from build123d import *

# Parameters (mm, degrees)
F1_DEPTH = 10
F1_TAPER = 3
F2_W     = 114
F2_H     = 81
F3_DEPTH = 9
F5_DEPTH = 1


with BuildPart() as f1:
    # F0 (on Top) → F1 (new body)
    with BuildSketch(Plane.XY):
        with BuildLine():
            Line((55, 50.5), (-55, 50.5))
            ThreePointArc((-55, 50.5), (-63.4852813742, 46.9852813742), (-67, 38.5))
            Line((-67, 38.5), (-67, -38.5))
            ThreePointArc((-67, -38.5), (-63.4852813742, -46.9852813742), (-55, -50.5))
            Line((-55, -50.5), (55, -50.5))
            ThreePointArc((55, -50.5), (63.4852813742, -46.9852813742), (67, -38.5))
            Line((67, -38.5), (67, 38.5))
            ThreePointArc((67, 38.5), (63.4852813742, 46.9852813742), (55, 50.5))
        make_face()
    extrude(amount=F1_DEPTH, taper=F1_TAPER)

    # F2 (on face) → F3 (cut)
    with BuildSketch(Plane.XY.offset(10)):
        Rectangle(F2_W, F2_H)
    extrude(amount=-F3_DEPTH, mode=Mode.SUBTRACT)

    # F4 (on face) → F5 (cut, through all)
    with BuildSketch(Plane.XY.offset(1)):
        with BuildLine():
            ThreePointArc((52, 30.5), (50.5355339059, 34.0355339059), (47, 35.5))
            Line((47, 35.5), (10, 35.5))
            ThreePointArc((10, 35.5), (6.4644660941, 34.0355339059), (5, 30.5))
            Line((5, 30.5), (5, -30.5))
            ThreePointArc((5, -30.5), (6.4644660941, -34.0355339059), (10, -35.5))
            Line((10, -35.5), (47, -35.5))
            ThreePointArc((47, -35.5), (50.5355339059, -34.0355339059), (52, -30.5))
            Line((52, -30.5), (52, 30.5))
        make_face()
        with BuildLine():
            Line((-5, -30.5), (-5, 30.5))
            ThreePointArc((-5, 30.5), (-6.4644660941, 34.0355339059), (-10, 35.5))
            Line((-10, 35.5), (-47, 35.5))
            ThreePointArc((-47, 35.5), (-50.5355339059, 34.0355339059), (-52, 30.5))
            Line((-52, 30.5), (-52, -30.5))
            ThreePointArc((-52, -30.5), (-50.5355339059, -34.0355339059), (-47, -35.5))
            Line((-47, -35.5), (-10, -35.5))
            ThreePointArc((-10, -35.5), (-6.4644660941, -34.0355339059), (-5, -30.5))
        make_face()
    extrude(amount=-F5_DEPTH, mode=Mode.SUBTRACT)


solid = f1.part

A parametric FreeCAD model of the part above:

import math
import FreeCAD as App
import Part
import Sketcher
from FreeCAD import Vector
Q = App.Units.Quantity


def add_polygon(sketch, points):
    """Adds a closed chain of lines whose ends are joined by coincident constraints."""
    first, n = sketch.GeometryCount, len(points)
    for a, b in zip(points, points[1:] + points[:1]):
        sketch.addGeometry(Part.LineSegment(App.Vector(*a, 0), App.Vector(*b, 0)), False)
    for i in range(n):
        sketch.addConstraint(Sketcher.Constraint("Coincident", first + i, 2, first + (i + 1) % n, 1))

doc = App.newDocument("Part")
body = doc.addObject("PartDesign::Body", "Body")

# Sketch on XY plane
sketch1 = body.newObject("Sketcher::SketchObject", "Sketch")
sketch1.AttachmentSupport = (doc.getObject("XY_Plane"), [""])
sketch1.MapMode = "FlatFace"
sketch1.addGeometry(Part.LineSegment(Vector(55, 50, 0), Vector(-55, 50, 0)), False)
sketch1.addGeometry(Part.ArcOfCircle(Part.Circle(Vector(-55, 38, 0), Vector(0, 0, 1), 12), math.radians(90), math.radians(180)), False)
sketch1.addGeometry(Part.LineSegment(Vector(-67, 38, 0), Vector(-67, -38, 0)), False)
sketch1.addGeometry(Part.ArcOfCircle(Part.Circle(Vector(-55, -38, 0), Vector(0, 0, 1), 12), math.radians(180), math.radians(270)), False)
sketch1.addGeometry(Part.LineSegment(Vector(-55, -50, 0), Vector(55, -50, 0)), False)
sketch1.addGeometry(Part.ArcOfCircle(Part.Circle(Vector(55, -38, 0), Vector(0, 0, 1), 12), math.radians(-90), math.radians(0)), False)
sketch1.addGeometry(Part.LineSegment(Vector(67, -38, 0), Vector(67, 38, 0)), False)
sketch1.addGeometry(Part.ArcOfCircle(Part.Circle(Vector(55, 38, 0), Vector(0, 0, 1), 12), math.radians(0), math.radians(90)), False)
sketch1.addConstraint(Sketcher.Constraint("Tangent", 0, 2, 1, 1))
sketch1.addConstraint(Sketcher.Constraint("Tangent", 1, 2, 2, 1))
sketch1.addConstraint(Sketcher.Constraint("Tangent", 2, 2, 3, 1))
sketch1.addConstraint(Sketcher.Constraint("Tangent", 3, 2, 4, 1))
sketch1.addConstraint(Sketcher.Constraint("Tangent", 4, 2, 5, 1))
sketch1.addConstraint(Sketcher.Constraint("Tangent", 5, 2, 6, 1))
sketch1.addConstraint(Sketcher.Constraint("Tangent", 6, 2, 7, 1))
sketch1.addConstraint(Sketcher.Constraint("Tangent", 7, 2, 0, 1))
sketch1.addConstraint(Sketcher.Constraint("Horizontal", 0))
sketch1.addConstraint(Sketcher.Constraint("Vertical", 2))
sketch1.addConstraint(Sketcher.Constraint("Horizontal", 4))
sketch1.addConstraint(Sketcher.Constraint("Vertical", 6))
sketch1.addConstraint(Sketcher.Constraint("Equal", 1, 3))
sketch1.addConstraint(Sketcher.Constraint("Equal", 3, 5))
sketch1.addConstraint(Sketcher.Constraint("Equal", 5, 7))
sketch1.addConstraint(Sketcher.Constraint("Symmetric", 1, 3, 5, 3, -1, 1))
sketch1.addConstraint(Sketcher.Constraint("Radius", 1, Q("12 mm")))
sketch1.addConstraint(Sketcher.Constraint("DistanceX", 0, 2, 0, 1, Q("110 mm")))
sketch1.addConstraint(Sketcher.Constraint("DistanceY", 2, 2, 2, 1, Q("77 mm")))
pad1 = body.newObject("PartDesign::Pad", "Pad")
pad1.Profile = sketch1
pad1.Length = 10
pad1.TaperAngle = -3

# Sketch on XY plane
sketch2 = body.newObject("Sketcher::SketchObject", "Sketch001")
sketch2.AttachmentSupport = (doc.getObject("XY_Plane"), [""])
sketch2.MapMode = "FlatFace"
sketch2.AttachmentOffset = App.Placement(Vector(0, 0, 10), App.Rotation())
add_polygon(sketch2, [(-57, 40), (-57, -40), (57, -40), (57, 40)])  # lines 0-3
sketch2.addConstraint(Sketcher.Constraint("Vertical", 0))
sketch2.addConstraint(Sketcher.Constraint("Horizontal", 1))
sketch2.addConstraint(Sketcher.Constraint("Vertical", 2))
sketch2.addConstraint(Sketcher.Constraint("Horizontal", 3))
sketch2.addConstraint(Sketcher.Constraint("Symmetric", 0, 2, 2, 2, -1, 1))
sketch2.addConstraint(Sketcher.Constraint("DistanceX", 1, 1, 1, 2, Q("114 mm")))
sketch2.addConstraint(Sketcher.Constraint("DistanceY", 0, 2, 0, 1, Q("81 mm")))
pocket1 = body.newObject("PartDesign::Pocket", "Pocket")
pocket1.Profile = sketch2
pocket1.Length = 9

# Sketch on XY plane
sketch3 = body.newObject("Sketcher::SketchObject", "Sketch002")
sketch3.AttachmentSupport = (doc.getObject("XY_Plane"), [""])
sketch3.MapMode = "FlatFace"
sketch3.AttachmentOffset = App.Placement(Vector(0, 0, 1), App.Rotation())
sketch3.addGeometry(Part.ArcOfCircle(Part.Circle(Vector(47, 30, 0), Vector(0, 0, 1), 5), math.radians(0), math.radians(90)), False)
sketch3.addGeometry(Part.LineSegment(Vector(47, 36, 0), Vector(10, 36, 0)), False)
sketch3.addGeometry(Part.ArcOfCircle(Part.Circle(Vector(10, 30, 0), Vector(0, 0, 1), 5), math.radians(90), math.radians(180)), False)
sketch3.addGeometry(Part.LineSegment(Vector(5, 30, 0), Vector(5, -30, 0)), False)
sketch3.addGeometry(Part.ArcOfCircle(Part.Circle(Vector(10, -30, 0), Vector(0, 0, 1), 5), math.radians(180), math.radians(270)), False)
sketch3.addGeometry(Part.LineSegment(Vector(10, -36, 0), Vector(47, -36, 0)), False)
sketch3.addGeometry(Part.ArcOfCircle(Part.Circle(Vector(47, -30, 0), Vector(0, 0, 1), 5), math.radians(-90), math.radians(0)), False)
sketch3.addGeometry(Part.LineSegment(Vector(52, -30, 0), Vector(52, 30, 0)), False)
sketch3.addGeometry(Part.LineSegment(Vector(-5, -30, 0), Vector(-5, 30, 0)), False)
sketch3.addGeometry(Part.ArcOfCircle(Part.Circle(Vector(-10, 30, 0), Vector(0, 0, 1), 5), math.radians(0), math.radians(90)), False)
sketch3.addGeometry(Part.LineSegment(Vector(-10, 36, 0), Vector(-47, 36, 0)), False)
sketch3.addGeometry(Part.ArcOfCircle(Part.Circle(Vector(-47, 30, 0), Vector(0, 0, 1), 5), math.radians(90), math.radians(180)), False)
sketch3.addGeometry(Part.LineSegment(Vector(-52, 30, 0), Vector(-52, -30, 0)), False)
sketch3.addGeometry(Part.ArcOfCircle(Part.Circle(Vector(-47, -30, 0), Vector(0, 0, 1), 5), math.radians(180), math.radians(270)), False)
sketch3.addGeometry(Part.LineSegment(Vector(-47, -36, 0), Vector(-10, -36, 0)), False)
sketch3.addGeometry(Part.ArcOfCircle(Part.Circle(Vector(-10, -30, 0), Vector(0, 0, 1), 5), math.radians(-90), math.radians(0)), False)
sketch3.addConstraint(Sketcher.Constraint("Tangent", 0, 2, 1, 1))
sketch3.addConstraint(Sketcher.Constraint("Tangent", 1, 2, 2, 1))
sketch3.addConstraint(Sketcher.Constraint("Tangent", 2, 2, 3, 1))
sketch3.addConstraint(Sketcher.Constraint("Tangent", 3, 2, 4, 1))
sketch3.addConstraint(Sketcher.Constraint("Tangent", 4, 2, 5, 1))
sketch3.addConstraint(Sketcher.Constraint("Tangent", 5, 2, 6, 1))
sketch3.addConstraint(Sketcher.Constraint("Tangent", 6, 2, 7, 1))
sketch3.addConstraint(Sketcher.Constraint("Tangent", 7, 2, 0, 1))
sketch3.addConstraint(Sketcher.Constraint("Tangent", 8, 2, 9, 1))
sketch3.addConstraint(Sketcher.Constraint("Tangent", 9, 2, 10, 1))
sketch3.addConstraint(Sketcher.Constraint("Tangent", 10, 2, 11, 1))
sketch3.addConstraint(Sketcher.Constraint("Tangent", 11, 2, 12, 1))
sketch3.addConstraint(Sketcher.Constraint("Tangent", 12, 2, 13, 1))
sketch3.addConstraint(Sketcher.Constraint("Tangent", 13, 2, 14, 1))
sketch3.addConstraint(Sketcher.Constraint("Tangent", 14, 2, 15, 1))
sketch3.addConstraint(Sketcher.Constraint("Tangent", 15, 2, 8, 1))
sketch3.addConstraint(Sketcher.Constraint("Horizontal", 1))
sketch3.addConstraint(Sketcher.Constraint("Vertical", 3))
sketch3.addConstraint(Sketcher.Constraint("Horizontal", 5))
sketch3.addConstraint(Sketcher.Constraint("Vertical", 7))
sketch3.addConstraint(Sketcher.Constraint("Vertical", 8))
sketch3.addConstraint(Sketcher.Constraint("Horizontal", 10))
sketch3.addConstraint(Sketcher.Constraint("Vertical", 12))
sketch3.addConstraint(Sketcher.Constraint("Horizontal", 14))
sketch3.addConstraint(Sketcher.Constraint("Equal", 0, 2))
sketch3.addConstraint(Sketcher.Constraint("Equal", 2, 4))
sketch3.addConstraint(Sketcher.Constraint("Equal", 4, 6))
sketch3.addConstraint(Sketcher.Constraint("Equal", 6, 9))
sketch3.addConstraint(Sketcher.Constraint("Equal", 9, 11))
sketch3.addConstraint(Sketcher.Constraint("Equal", 11, 13))
sketch3.addConstraint(Sketcher.Constraint("Equal", 13, 15))
sketch3.addConstraint(Sketcher.Constraint("Symmetric", 4, 3, 9, 3, -1, 1))
sketch3.addConstraint(Sketcher.Constraint("Symmetric", 0, 3, 13, 3, -1, 1))
sketch3.addConstraint(Sketcher.Constraint("Horizontal", 2, 3, 9, 3))
sketch3.addConstraint(Sketcher.Constraint("Radius", 0, Q("5 mm")))
sketch3.addConstraint(Sketcher.Constraint("DistanceX", 1, 2, 1, 1, Q("37 mm")))
sketch3.addConstraint(Sketcher.Constraint("DistanceY", 3, 2, 3, 1, Q("61 mm")))
sketch3.addConstraint(Sketcher.Constraint("DistanceX", -1, 1, 0, 3, Q("47 mm")))
pocket2 = body.newObject("PartDesign::Pocket", "Pocket001")
pocket2.Profile = sketch3
pocket2.Type = "ThroughAll"

doc.recompute()
